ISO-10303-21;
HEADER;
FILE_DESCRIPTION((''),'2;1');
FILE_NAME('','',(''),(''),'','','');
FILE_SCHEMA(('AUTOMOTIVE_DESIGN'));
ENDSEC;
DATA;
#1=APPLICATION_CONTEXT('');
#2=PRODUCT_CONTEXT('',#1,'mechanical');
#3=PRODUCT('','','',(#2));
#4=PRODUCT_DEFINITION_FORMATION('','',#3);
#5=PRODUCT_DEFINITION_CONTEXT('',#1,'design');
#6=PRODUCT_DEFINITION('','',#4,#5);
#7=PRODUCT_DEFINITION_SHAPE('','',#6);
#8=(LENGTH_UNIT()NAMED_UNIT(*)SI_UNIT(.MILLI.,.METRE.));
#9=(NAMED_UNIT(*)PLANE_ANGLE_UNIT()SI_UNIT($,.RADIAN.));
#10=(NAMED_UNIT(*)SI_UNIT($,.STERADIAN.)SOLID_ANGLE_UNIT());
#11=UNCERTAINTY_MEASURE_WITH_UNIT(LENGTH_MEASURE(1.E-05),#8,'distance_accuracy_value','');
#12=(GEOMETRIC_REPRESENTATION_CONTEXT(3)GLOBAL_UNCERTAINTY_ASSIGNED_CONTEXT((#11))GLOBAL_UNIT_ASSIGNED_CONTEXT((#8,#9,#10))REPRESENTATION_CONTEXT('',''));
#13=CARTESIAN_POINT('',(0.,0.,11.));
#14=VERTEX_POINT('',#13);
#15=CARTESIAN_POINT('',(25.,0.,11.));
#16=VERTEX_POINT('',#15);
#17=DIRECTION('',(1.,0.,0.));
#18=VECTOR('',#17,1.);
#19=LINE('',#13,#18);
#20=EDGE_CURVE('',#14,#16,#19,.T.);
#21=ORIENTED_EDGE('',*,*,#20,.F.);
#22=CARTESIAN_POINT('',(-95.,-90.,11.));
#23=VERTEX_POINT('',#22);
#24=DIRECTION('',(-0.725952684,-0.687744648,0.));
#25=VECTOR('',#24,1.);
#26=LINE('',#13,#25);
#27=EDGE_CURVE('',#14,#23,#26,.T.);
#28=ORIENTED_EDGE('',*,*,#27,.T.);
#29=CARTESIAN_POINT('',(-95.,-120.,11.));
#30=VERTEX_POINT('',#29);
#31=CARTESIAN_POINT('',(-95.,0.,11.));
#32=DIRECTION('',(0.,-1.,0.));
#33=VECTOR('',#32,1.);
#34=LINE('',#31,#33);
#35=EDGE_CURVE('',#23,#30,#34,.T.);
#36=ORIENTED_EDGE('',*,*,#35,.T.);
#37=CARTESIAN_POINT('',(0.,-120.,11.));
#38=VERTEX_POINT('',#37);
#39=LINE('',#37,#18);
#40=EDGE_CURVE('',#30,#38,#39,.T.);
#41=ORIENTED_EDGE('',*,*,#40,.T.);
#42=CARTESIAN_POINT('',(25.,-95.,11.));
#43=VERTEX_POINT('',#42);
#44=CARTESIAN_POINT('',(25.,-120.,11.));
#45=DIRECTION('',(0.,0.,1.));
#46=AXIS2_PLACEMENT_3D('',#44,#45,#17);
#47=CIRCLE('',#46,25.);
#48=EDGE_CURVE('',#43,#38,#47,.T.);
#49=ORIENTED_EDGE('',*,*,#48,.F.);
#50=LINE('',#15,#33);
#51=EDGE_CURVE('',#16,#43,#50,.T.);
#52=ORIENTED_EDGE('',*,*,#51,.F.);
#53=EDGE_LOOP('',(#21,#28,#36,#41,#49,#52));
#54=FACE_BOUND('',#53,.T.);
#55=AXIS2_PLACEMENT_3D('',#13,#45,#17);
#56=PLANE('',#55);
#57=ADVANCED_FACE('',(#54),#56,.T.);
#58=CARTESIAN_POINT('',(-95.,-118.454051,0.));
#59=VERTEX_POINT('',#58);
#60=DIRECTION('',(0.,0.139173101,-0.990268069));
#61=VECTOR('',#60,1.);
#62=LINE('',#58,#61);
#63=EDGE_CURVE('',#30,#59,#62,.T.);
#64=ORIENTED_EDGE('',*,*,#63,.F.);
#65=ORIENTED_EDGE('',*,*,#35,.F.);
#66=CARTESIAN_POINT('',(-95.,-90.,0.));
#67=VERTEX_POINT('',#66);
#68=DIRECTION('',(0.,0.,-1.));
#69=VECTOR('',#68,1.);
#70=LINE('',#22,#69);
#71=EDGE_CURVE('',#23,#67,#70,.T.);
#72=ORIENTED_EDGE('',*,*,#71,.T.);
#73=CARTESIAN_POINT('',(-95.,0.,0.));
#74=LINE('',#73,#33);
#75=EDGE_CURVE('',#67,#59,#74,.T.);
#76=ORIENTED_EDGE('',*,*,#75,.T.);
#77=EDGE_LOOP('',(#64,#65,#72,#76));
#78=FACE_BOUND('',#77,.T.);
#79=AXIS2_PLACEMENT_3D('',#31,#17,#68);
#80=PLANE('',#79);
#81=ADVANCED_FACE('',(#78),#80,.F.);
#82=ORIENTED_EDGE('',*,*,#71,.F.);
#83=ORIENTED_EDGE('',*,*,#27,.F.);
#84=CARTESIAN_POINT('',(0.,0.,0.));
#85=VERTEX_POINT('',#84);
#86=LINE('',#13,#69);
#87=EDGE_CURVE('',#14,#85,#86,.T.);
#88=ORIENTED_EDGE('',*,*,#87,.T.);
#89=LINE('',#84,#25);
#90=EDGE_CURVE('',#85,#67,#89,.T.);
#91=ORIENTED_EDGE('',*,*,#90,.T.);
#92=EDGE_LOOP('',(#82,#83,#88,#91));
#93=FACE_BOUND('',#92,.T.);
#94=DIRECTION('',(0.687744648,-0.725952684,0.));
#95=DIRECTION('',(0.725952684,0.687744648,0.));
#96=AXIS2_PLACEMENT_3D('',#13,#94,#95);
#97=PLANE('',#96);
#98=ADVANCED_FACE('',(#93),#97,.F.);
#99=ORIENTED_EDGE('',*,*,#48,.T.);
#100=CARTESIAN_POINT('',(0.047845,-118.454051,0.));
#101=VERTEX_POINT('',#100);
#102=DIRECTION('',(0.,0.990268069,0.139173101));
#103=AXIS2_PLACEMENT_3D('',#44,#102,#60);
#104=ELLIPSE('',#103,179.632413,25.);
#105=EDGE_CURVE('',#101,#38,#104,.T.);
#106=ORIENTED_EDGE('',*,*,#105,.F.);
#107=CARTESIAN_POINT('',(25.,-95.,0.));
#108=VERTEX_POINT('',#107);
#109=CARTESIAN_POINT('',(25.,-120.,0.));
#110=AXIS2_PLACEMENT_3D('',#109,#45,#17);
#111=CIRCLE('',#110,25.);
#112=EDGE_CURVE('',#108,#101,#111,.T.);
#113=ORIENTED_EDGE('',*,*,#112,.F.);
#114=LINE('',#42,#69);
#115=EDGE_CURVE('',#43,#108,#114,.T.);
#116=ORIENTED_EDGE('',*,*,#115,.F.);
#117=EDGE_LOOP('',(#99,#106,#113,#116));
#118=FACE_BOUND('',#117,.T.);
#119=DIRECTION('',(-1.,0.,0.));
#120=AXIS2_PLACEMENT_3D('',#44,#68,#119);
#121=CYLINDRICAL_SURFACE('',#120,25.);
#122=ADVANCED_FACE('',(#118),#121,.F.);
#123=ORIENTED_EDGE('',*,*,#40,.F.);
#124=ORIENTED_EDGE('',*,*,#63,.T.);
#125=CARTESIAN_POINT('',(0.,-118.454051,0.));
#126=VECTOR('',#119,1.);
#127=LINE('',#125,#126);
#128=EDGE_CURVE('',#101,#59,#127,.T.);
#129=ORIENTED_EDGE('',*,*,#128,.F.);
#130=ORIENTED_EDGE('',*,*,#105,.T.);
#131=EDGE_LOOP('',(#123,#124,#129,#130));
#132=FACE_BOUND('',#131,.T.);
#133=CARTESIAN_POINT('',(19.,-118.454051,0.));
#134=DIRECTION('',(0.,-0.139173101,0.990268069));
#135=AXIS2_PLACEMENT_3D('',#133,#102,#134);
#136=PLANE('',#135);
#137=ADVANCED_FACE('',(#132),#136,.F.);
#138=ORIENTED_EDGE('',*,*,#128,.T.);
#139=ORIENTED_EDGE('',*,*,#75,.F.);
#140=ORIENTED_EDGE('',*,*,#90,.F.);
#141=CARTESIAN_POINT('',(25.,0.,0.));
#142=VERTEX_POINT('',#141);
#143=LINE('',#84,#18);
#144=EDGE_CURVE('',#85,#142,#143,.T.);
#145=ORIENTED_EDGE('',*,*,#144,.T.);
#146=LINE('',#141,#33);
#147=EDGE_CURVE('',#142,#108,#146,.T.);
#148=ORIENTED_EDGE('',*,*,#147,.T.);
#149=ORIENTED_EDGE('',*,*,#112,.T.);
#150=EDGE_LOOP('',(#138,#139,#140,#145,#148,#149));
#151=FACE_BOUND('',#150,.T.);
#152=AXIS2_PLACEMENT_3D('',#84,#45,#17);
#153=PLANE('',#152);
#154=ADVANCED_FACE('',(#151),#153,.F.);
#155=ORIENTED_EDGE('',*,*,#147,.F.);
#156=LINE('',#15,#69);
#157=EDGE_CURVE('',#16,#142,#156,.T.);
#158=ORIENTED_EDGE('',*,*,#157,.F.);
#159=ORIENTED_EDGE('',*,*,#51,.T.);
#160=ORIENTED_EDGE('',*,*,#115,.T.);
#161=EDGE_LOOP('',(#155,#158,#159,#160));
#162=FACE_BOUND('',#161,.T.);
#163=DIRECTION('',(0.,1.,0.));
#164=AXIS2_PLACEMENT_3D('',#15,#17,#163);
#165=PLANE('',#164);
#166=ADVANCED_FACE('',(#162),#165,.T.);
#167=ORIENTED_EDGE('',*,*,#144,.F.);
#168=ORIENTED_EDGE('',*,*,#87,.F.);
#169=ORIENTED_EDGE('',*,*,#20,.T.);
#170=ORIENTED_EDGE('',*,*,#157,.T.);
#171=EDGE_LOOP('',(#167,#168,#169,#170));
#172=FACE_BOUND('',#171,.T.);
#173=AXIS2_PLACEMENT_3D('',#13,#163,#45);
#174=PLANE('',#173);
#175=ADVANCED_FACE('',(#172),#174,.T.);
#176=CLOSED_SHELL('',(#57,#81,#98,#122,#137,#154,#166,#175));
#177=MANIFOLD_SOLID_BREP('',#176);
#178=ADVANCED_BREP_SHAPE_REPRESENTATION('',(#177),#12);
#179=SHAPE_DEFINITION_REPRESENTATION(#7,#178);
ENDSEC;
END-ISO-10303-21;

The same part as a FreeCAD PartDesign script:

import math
import FreeCAD as App
import Part
import Sketcher
Q = App.Units.Quantity


def add_polygon(sketch, points):
    """Adds a closed chain of lines whose ends are joined by coincident constraints."""
    first, n = sketch.GeometryCount, len(points)
    for a, b in zip(points, points[1:] + points[:1]):
        sketch.addGeometry(Part.LineSegment(App.Vector(*a, 0), App.Vector(*b, 0)), False)
    for i in range(n):
        sketch.addConstraint(Sketcher.Constraint("Coincident", first + i, 2, first + (i + 1) % n, 1))

doc = App.newDocument("Part")
body = doc.addObject("PartDesign::Body", "Body")

sketch1 = body.newObject("Sketcher::SketchObject", "Sketch")
sketch1.AttachmentSupport = (doc.getObject("XY_Plane"), [""])
sketch1.MapMode = "FlatFace"
sketch1.addGeometry(Part.LineSegment(App.Vector(25, 0, 0), App.Vector(0, 0, 0)), False)
sketch1.addGeometry(Part.LineSegment(App.Vector(0, 0, 0), App.Vector(-95, -90, 0)), False)
sketch1.addGeometry(Part.LineSegment(App.Vector(-95, -90, 0), App.Vector(-95, -120, 0)), False)
sketch1.addGeometry(Part.LineSegment(App.Vector(-95, -120, 0), App.Vector(0, -120, 0)), False)
sketch1.addGeometry(Part.ArcOfCircle(Part.Circle(App.Vector(25, -120, 0), App.Vector(0, 0, 1), 25), math.radians(90), math.radians(180)), False)
sketch1.addGeometry(Part.LineSegment(App.Vector(25, -95, 0), App.Vector(25, 0, 0)), False)
sketch1.addConstraint(Sketcher.Constraint("Coincident", 0, 2, 1, 1))
sketch1.addConstraint(Sketcher.Constraint("Coincident", 1, 2, 2, 1))
sketch1.addConstraint(Sketcher.Constraint("Coincident", 2, 2, 3, 1))
sketch1.addConstraint(Sketcher.Constraint("Coincident", 3, 2, 4, 2))
sketch1.addConstraint(Sketcher.Constraint("Coincident", 4, 1, 5, 1))
sketch1.addConstraint(Sketcher.Constraint("Coincident", 5, 2, 0, 1))
sketch1.addConstraint(Sketcher.Constraint("Horizontal", 0))
sketch1.addConstraint(Sketcher.Constraint("Vertical", 2))
sketch1.addConstraint(Sketcher.Constraint("Horizontal", 3))
sketch1.addConstraint(Sketcher.Constraint("Vertical", 5))
sketch1.addConstraint(Sketcher.Constraint("Coincident", 0, 2, -1, 1))
sketch1.addConstraint(Sketcher.Constraint("PointOnObject", 3, 2, -2))
sketch1.addConstraint(Sketcher.Constraint("Horizontal", 4, 3, 2, 2))
sketch1.addConstraint(Sketcher.Constraint("Equal", 3, 5))
sketch1.addConstraint(Sketcher.Constraint("Radius", 4, Q("25 mm")))
sketch1.addConstraint(Sketcher.Constraint("DistanceX", 0, 2, 0, 1, Q("25 mm")))
sketch1.addConstraint(Sketcher.Constraint("DistanceX", 3, 1, 3, 2, Q("95 mm")))
sketch1.addConstraint(Sketcher.Constraint("DistanceY", 2, 2, 2, 1, Q("30 mm")))
pad1 = body.newObject("PartDesign::Pad", "Pad")
pad1.Profile = sketch1
pad1.Length = 11

sketch2 = body.newObject("Sketcher::SketchObject", "Sketch001")
sketch2.AttachmentSupport = (doc.getObject("YZ_Plane"), [""])
sketch2.MapMode = "FlatFace"
sketch2.AttachmentOffset = App.Placement(App.Vector(0, 0, -95), App.Rotation())
add_polygon(sketch2, [(-118.5, 0), (-120, 0), (-120, 11)])
sketch2.addConstraint(Sketcher.Constraint("Horizontal", 0))
sketch2.addConstraint(Sketcher.Constraint("Vertical", 1))
sketch2.addConstraint(Sketcher.Constraint("PointOnObject", 0, 2, -1))
sketch2.addConstraint(Sketcher.Constraint("DistanceY", 1, 1, 1, 2, Q("11 mm")))
sketch2.addConstraint(Sketcher.Constraint("Angle", 2, Q("-82 deg")))
sketch2.addConstraint(Sketcher.Constraint("DistanceX", 0, 2, -1, 1, Q("120 mm")))
pocket1 = body.newObject("PartDesign::Pocket", "Pocket")
pocket1.Profile = sketch2
pocket1.Length = 114
pocket1.Reversed = True

doc.recompute()
